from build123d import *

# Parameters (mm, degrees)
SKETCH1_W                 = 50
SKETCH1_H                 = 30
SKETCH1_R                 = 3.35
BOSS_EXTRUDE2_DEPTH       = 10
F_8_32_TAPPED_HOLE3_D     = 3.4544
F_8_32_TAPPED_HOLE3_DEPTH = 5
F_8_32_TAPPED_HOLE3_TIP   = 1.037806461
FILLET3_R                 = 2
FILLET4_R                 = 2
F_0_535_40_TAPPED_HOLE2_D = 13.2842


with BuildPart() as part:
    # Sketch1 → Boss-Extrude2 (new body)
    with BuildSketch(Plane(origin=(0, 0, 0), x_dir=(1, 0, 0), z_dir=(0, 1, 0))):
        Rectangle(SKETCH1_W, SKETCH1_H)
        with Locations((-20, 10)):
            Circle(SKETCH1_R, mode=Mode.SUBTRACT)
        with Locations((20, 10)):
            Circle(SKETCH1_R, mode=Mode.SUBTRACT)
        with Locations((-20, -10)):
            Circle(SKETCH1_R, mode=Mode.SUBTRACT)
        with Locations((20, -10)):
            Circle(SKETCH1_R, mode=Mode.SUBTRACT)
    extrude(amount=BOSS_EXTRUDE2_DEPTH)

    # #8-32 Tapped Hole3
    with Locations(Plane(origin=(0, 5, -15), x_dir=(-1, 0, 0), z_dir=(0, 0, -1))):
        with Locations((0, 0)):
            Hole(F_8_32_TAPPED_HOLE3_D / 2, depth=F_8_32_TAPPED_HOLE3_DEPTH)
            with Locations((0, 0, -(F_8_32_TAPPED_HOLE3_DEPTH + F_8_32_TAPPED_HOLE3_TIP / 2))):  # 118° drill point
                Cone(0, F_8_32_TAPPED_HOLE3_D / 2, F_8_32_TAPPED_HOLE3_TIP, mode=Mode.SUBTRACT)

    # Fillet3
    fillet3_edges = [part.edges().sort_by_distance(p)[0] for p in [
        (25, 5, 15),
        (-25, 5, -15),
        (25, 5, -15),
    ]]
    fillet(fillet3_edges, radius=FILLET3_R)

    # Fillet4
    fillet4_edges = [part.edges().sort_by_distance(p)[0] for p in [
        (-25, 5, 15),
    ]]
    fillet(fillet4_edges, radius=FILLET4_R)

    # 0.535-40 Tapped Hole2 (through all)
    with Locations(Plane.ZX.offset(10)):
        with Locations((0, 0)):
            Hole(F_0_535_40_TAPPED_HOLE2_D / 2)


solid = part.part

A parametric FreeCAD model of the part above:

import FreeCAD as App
import Part
import Sketcher

V = App.Vector
Q = App.Units.Quantity


def edges_at(feature, points):
    """Names of the edges that pass closest to the given points."""
    edges = feature.Shape.Edges
    near = lambda p: min(range(len(edges)), key=lambda i: edges[i].distToShape(Part.Vertex(*p))[0])
    return sorted({f"Edge{near(p) + 1}" for p in points})


def add_polygon(sketch, points):
    """Adds a closed chain of lines whose ends are joined by coincident constraints."""
    first, n = sketch.GeometryCount, len(points)
    for a, b in zip(points, points[1:] + points[:1]):
        sketch.addGeometry(Part.LineSegment(App.Vector(*a, 0), App.Vector(*b, 0)), False)
    for i in range(n):
        sketch.addConstraint(Sketcher.Constraint("Coincident", first + i, 2, first + (i + 1) % n, 1))

doc = App.newDocument("Part")
params = doc.addObject("Spreadsheet::Sheet", "Params")
for row, (alias, value) in enumerate([
    ("sketch1_diameter", "6.7 mm"),
    ("sketch1_width", "50 mm"),
    ("sketch1_height", "30 mm"),
    ("pad1_length", "10 mm"),
    ("hole_diameter", "3.4544 mm"),
    ("hole_depth", "5 mm"),
    ("fillet_radius", "2 mm"),
    ("fillet2_radius", "2 mm"),
    ("hole2_diameter", "13.2842 mm"),
], start=1):
    params.set(f"A{row}", alias)
    params.set(f"B{row}", "=" + value)
    params.setAlias(f"B{row}", alias)

body = doc.addObject("PartDesign::Body", "Body")

sketch1 = doc.addObject("Sketcher::SketchObject", "Sketch")
body.addObject(sketch1)
sketch1.AttachmentSupport = (doc.XZ_Plane, [""])
sketch1.MapMode = "FlatFace"
add_polygon(sketch1, [(-25, -15), (-25, 15), (25, 15), (25, -15)])
sketch1.addGeometry(Part.Circle(V(-20, 10, 0), V(0, 0, 1), 3.4), False)
sketch1.addGeometry(Part.Circle(V(20, 10, 0), V(0, 0, 1), 3.4), False)
sketch1.addGeometry(Part.Circle(V(-20, -10, 0), V(0, 0, 1), 3.4), False)
sketch1.addGeometry(Part.Circle(V(20, -10, 0), V(0, 0, 1), 3.4), False)
sketch1.addConstraint([
    Sketcher.Constraint("Vertical", 0),
    Sketcher.Constraint("Horizontal", 1),
    Sketcher.Constraint("Vertical", 2),
    Sketcher.Constraint("Horizontal", 3),
    Sketcher.Constraint("Equal", 4, 5),
    Sketcher.Constraint("Equal", 5, 6),
    Sketcher.Constraint("Equal", 6, 7),
    Sketcher.Constraint("Symmetric", 5, 3, 6, 3, -1, 1),
    Sketcher.Constraint("Symmetric", 4, 3, 7, 3, -1, 1),
    Sketcher.Constraint("Symmetric", 0, 2, 2, 2, -1, 1),
    Sketcher.Constraint("Symmetric", 4, 3, 5, 3, -2),
    Sketcher.Constraint("Diameter", 4, Q("6.7 mm")),
    Sketcher.Constraint("DistanceX", 1, 1, 1, 2, Q("50 mm")),
    Sketcher.Constraint("DistanceY", 0, 1, 0, 2, Q("30 mm")),
    Sketcher.Constraint("DistanceX", 4, 3, -1, 1, Q("20 mm")),
    Sketcher.Constraint("DistanceY", -1, 1, 4, 3, Q("10 mm")),
])
sketch1.setExpression("Constraints[15]", "Params.sketch1_diameter")
sketch1.setExpression("Constraints[16]", "Params.sketch1_width")
sketch1.setExpression("Constraints[17]", "Params.sketch1_height")
pad1 = doc.addObject("PartDesign::Pad", "Pad")
body.addObject(pad1)
pad1.Profile = sketch1
pad1.setExpression("Length", "Params.pad1_length")
pad1.Reversed = True

sketch2 = doc.addObject("Sketcher::SketchObject", "Sketch001")
body.addObject(sketch2)
sketch2.AttachmentSupport = (doc.XY_Plane, [""])
sketch2.MapMode = "FlatFace"
sketch2.AttachmentOffset = App.Placement(V(0, 0, -15), App.Rotation())
sketch2.addGeometry(Part.Circle(V(0, 5, 0), V(0, 0, 1), 1.7), False)
sketch2.addConstraint([
    Sketcher.Constraint("PointOnObject", 0, 3, -2),
    Sketcher.Constraint("DistanceY", -1, 1, 0, 3, Q("5 mm")),
    Sketcher.Constraint("Diameter", 0, Q("3.4544 mm")),
])
doc.recompute()
hole = doc.addObject("PartDesign::Hole", "Hole")
body.addObject(hole)
hole.Profile = sketch2
hole.ThreadType = "None"
hole.setExpression("Diameter", "Params.hole_diameter")
hole.DepthType = "Dimension"
hole.setExpression("Depth", "Params.hole_depth")
hole.DrillPoint = "Angled"
hole.DrillPointAngle = 118
hole.Reversed = True
doc.recompute()

fillet = doc.addObject("PartDesign::Fillet", "Fillet")
body.addObject(fillet)
fillet.Base = (hole, edges_at(hole, [(25, 5, 15), (-25, 5, -15), (25, 5, -15)]))
fillet.setExpression("Radius", "Params.fillet_radius")
doc.recompute()

fillet2 = doc.addObject("PartDesign::Fillet", "Fillet001")
body.addObject(fillet2)
fillet2.Base = (fillet, edges_at(fillet, [(-25, 5, 15)]))
fillet2.setExpression("Radius", "Params.fillet2_radius")

sketch3 = doc.addObject("Sketcher::SketchObject", "Sketch002")
body.addObject(sketch3)
sketch3.AttachmentSupport = (doc.XZ_Plane, [""])
sketch3.MapMode = "FlatFace"
sketch3.AttachmentOffset = App.Placement(V(0, 0, -10), App.Rotation())
sketch3.addGeometry(Part.Circle(V(0, 0, 0), V(0, 0, 1), 7), False)
sketch3.addConstraint([
    Sketcher.Constraint("Coincident", 0, 3, -1, 1),
    Sketcher.Constraint("Diameter", 0, Q("13.2842 mm")),
])
doc.recompute()
hole2 = doc.addObject("PartDesign::Hole", "Hole001")
body.addObject(hole2)
hole2.Profile = sketch3
hole2.ThreadType = "None"
hole2.setExpression("Diameter", "Params.hole2_diameter")
hole2.DepthType = "ThroughAll"
hole2.Reversed = True

doc.recompute()
